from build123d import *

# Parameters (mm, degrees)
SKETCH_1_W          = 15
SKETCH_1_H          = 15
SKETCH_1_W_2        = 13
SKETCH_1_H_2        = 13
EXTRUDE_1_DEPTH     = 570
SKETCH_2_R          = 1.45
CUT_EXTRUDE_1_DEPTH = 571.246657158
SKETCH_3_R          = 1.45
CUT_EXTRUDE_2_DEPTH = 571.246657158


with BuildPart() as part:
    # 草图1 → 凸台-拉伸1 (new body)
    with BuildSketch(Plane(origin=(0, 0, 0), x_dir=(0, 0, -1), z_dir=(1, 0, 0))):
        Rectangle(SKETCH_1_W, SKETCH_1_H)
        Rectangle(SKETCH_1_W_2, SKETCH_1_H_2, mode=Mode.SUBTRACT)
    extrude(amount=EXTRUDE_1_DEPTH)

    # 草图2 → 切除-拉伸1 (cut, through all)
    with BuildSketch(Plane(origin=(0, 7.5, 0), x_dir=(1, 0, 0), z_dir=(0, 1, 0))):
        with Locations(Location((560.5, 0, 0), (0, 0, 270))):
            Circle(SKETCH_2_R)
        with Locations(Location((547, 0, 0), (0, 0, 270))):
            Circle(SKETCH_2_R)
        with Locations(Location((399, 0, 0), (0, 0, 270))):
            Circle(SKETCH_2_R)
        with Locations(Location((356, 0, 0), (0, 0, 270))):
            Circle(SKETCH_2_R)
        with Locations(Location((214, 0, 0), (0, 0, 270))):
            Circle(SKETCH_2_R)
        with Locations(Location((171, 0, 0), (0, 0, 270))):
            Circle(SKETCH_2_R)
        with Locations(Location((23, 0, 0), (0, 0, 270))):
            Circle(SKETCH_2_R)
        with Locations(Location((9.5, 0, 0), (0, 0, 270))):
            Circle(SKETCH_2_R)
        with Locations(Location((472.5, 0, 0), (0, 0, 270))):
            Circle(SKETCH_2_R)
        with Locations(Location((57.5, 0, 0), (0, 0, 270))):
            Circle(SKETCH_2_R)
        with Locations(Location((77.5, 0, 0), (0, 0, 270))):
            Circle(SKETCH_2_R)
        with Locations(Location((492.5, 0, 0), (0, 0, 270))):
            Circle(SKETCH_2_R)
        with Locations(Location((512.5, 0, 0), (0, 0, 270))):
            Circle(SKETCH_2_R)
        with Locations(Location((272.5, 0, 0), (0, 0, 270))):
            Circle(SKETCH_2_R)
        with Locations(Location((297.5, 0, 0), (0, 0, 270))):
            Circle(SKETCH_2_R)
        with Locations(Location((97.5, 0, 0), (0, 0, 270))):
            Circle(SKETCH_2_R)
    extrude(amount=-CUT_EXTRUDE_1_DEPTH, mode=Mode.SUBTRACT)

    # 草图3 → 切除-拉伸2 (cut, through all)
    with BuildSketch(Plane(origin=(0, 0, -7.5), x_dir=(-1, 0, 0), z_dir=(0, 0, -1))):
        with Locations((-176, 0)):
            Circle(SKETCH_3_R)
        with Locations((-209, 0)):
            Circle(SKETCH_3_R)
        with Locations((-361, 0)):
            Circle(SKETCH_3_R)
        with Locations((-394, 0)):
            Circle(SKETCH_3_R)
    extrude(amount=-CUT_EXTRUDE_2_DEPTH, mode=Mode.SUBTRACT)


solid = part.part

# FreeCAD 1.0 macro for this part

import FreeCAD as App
import Part
import Sketcher
Q = App.Units.Quantity


def add_polygon(sketch, points):
    """Adds a closed chain of lines whose ends are joined by coincident constraints."""
    first, n = sketch.GeometryCount, len(points)
    for a, b in zip(points, points[1:] + points[:1]):
        sketch.addGeometry(Part.LineSegment(App.Vector(*a, 0), App.Vector(*b, 0)), False)
    for i in range(n):
        sketch.addConstraint(Sketcher.Constraint("Coincident", first + i, 2, first + (i + 1) % n, 1))

doc = App.newDocument("Part")
params = doc.addObject("Spreadsheet::Sheet", "Params")
for row, (alias, value) in enumerate([
    ("sketch1_width", "15 mm"),
    ("sketch1_width2", "13 mm"),
    ("pad1_length", "570 mm"),
    ("sketch2_diameter", "2.9 mm"),
    ("sketch3_diameter", "2.9 mm"),
], start=1):
    params.set(f"A{row}", alias)
    params.set(f"B{row}", "=" + value)
    params.setAlias(f"B{row}", alias)

body = doc.addObject("PartDesign::Body", "Body")

# Sketch on YZ plane
sketch1 = body.newObject("Sketcher::SketchObject", "Sketch")
sketch1.AttachmentSupport = (doc.getObject("YZ_Plane"), [""])
sketch1.MapMode = "FlatFace"
add_polygon(sketch1, [(8, 8), (-8, 8), (-8, -8), (8, -8)])  # lines 0-3
add_polygon(sketch1, [(-6, -6), (-6, 6), (6, 6), (6, -6)])  # lines 4-7
sketch1.addConstraint(Sketcher.Constraint("Horizontal", 0))
sketch1.addConstraint(Sketcher.Constraint("Vertical", 1))
sketch1.addConstraint(Sketcher.Constraint("Horizontal", 2))
sketch1.addConstraint(Sketcher.Constraint("Vertical", 3))
sketch1.addConstraint(Sketcher.Constraint("Vertical", 4))
sketch1.addConstraint(Sketcher.Constraint("Horizontal", 5))
sketch1.addConstraint(Sketcher.Constraint("Vertical", 6))
sketch1.addConstraint(Sketcher.Constraint("Horizontal", 7))
sketch1.addConstraint(Sketcher.Constraint("Symmetric", 0, 2, 2, 2, -1, 1))
sketch1.addConstraint(Sketcher.Constraint("Symmetric", 4, 2, 6, 2, -1, 1))
sketch1.addConstraint(Sketcher.Constraint("Equal", 2, 1))
sketch1.addConstraint(Sketcher.Constraint("Equal", 7, 4))
sketch1.addConstraint(Sketcher.Constraint("DistanceX", 0, 2, 0, 1, Q("15 mm")))
sketch1.addConstraint(Sketcher.Constraint("DistanceX", 5, 1, 5, 2, Q("13 mm")))
sketch1.setExpression("Constraints[20]", "Params.sketch1_width")
sketch1.setExpression("Constraints[21]", "Params.sketch1_width2")
pad1 = body.newObject("PartDesign::Pad", "Pad")
pad1.Profile = sketch1
pad1.setExpression("Length", "Params.pad1_length")

# Sketch on XZ plane
sketch2 = body.newObject("Sketcher::SketchObject", "Sketch001")
sketch2.AttachmentSupport = (doc.getObject("XZ_Plane"), [""])
sketch2.MapMode = "FlatFace"
sketch2.AttachmentOffset = App.Placement(App.Vector(0, 0, -7.5), App.Rotation())
sketch2.addGeometry(Part.Circle(App.Vector(560.5, 0, 0), App.Vector(0, 0, 1), 1.4), False)
sketch2.addGeometry(Part.Circle(App.Vector(547, 0, 0), App.Vector(0, 0, 1), 1.4), False)
sketch2.addGeometry(Part.Circle(App.Vector(399, 0, 0), App.Vector(0, 0, 1), 1.4), False)
sketch2.addGeometry(Part.Circle(App.Vector(356, 0, 0), App.Vector(0, 0, 1), 1.4), False)
sketch2.addGeometry(Part.Circle(App.Vector(214, 0, 0), App.Vector(0, 0, 1), 1.4), False)
sketch2.addGeometry(Part.Circle(App.Vector(171, 0, 0), App.Vector(0, 0, 1), 1.4), False)
sketch2.addGeometry(Part.Circle(App.Vector(23, 0, 0), App.Vector(0, 0, 1), 1.4), False)
sketch2.addGeometry(Part.Circle(App.Vector(9.5, 0, 0), App.Vector(0, 0, 1), 1.4), False)
sketch2.addGeometry(Part.Circle(App.Vector(472.5, 0, 0), App.Vector(0, 0, 1), 1.4), False)
sketch2.addGeometry(Part.Circle(App.Vector(57.5, 0, 0), App.Vector(0, 0, 1), 1.4), False)
sketch2.addGeometry(Part.Circle(App.Vector(77.5, 0, 0), App.Vector(0, 0, 1), 1.4), False)
sketch2.addGeometry(Part.Circle(App.Vector(492.5, 0, 0), App.Vector(0, 0, 1), 1.4), False)
sketch2.addGeometry(Part.Circle(App.Vector(512.5, 0, 0), App.Vector(0, 0, 1), 1.4), False)
sketch2.addGeometry(Part.Circle(App.Vector(272.5, 0, 0), App.Vector(0, 0, 1), 1.4), False)
sketch2.addGeometry(Part.Circle(App.Vector(297.5, 0, 0), App.Vector(0, 0, 1), 1.4), False)
sketch2.addGeometry(Part.Circle(App.Vector(97.5, 0, 0), App.Vector(0, 0, 1), 1.4), False)
sketch2.addConstraint(Sketcher.Constraint("Equal", 0, 1))
sketch2.addConstraint(Sketcher.Constraint("Equal", 1, 2))
sketch2.addConstraint(Sketcher.Constraint("Equal", 2, 3))
sketch2.addConstraint(Sketcher.Constraint("Equal", 3, 4))
sketch2.addConstraint(Sketcher.Constraint("Equal", 4, 5))
sketch2.addConstraint(Sketcher.Constraint("Equal", 5, 6))
sketch2.addConstraint(Sketcher.Constraint("Equal", 6, 7))
sketch2.addConstraint(Sketcher.Constraint("Equal", 7, 8))
sketch2.addConstraint(Sketcher.Constraint("Equal", 8, 9))
sketch2.addConstraint(Sketcher.Constraint("Equal", 9, 10))
sketch2.addConstraint(Sketcher.Constraint("Equal", 10, 11))
sketch2.addConstraint(Sketcher.Constraint("Equal", 11, 12))
sketch2.addConstraint(Sketcher.Constraint("Equal", 12, 13))
sketch2.addConstraint(Sketcher.Constraint("Equal", 13, 14))
sketch2.addConstraint(Sketcher.Constraint("Equal", 14, 15))
sketch2.addConstraint(Sketcher.Constraint("PointOnObject", 0, 3, -1))
sketch2.addConstraint(Sketcher.Constraint("PointOnObject", 1, 3, -1))
sketch2.addConstraint(Sketcher.Constraint("PointOnObject", 2, 3, -1))
sketch2.addConstraint(Sketcher.Constraint("PointOnObject", 3, 3, -1))
sketch2.addConstraint(Sketcher.Constraint("PointOnObject", 4, 3, -1))
sketch2.addConstraint(Sketcher.Constraint("PointOnObject", 5, 3, -1))
sketch2.addConstraint(Sketcher.Constraint("PointOnObject", 6, 3, -1))
sketch2.addConstraint(Sketcher.Constraint("PointOnObject", 7, 3, -1))
sketch2.addConstraint(Sketcher.Constraint("PointOnObject", 8, 3, -1))
sketch2.addConstraint(Sketcher.Constraint("PointOnObject", 9, 3, -1))
sketch2.addConstraint(Sketcher.Constraint("PointOnObject", 10, 3, -1))
sketch2.addConstraint(Sketcher.Constraint("PointOnObject", 11, 3, -1))
sketch2.addConstraint(Sketcher.Constraint("PointOnObject", 12, 3, -1))
sketch2.addConstraint(Sketcher.Constraint("PointOnObject", 13, 3, -1))
sketch2.addConstraint(Sketcher.Constraint("PointOnObject", 14, 3, -1))
sketch2.addConstraint(Sketcher.Constraint("PointOnObject", 15, 3, -1))
sketch2.addConstraint(Sketcher.Constraint("Diameter", 0, Q("2.9 mm")))
sketch2.addConstraint(Sketcher.Constraint("DistanceX", -1, 1, 1, 3, Q("547 mm")))
sketch2.addConstraint(Sketcher.Constraint("DistanceX", -1, 1, 2, 3, Q("399 mm")))
sketch2.addConstraint(Sketcher.Constraint("DistanceX", -1, 1, 3, 3, Q("356 mm")))
sketch2.addConstraint(Sketcher.Constraint("DistanceX", -1, 1, 4, 3, Q("214 mm")))
sketch2.addConstraint(Sketcher.Constraint("DistanceX", -1, 1, 5, 3, Q("171 mm")))
sketch2.addConstraint(Sketcher.Constraint("DistanceX", -1, 1, 6, 3, Q("23 mm")))
sketch2.addConstraint(Sketcher.Constraint("DistanceX", 8, 3, 0, 3, Q("88 mm")))
sketch2.addConstraint(Sketcher.Constraint("DistanceX", 7, 3, 9, 3, Q("48 mm")))
sketch2.addConstraint(Sketcher.Constraint("DistanceX", 9, 3, 10, 3, Q("20 mm")))
sketch2.addConstraint(Sketcher.Constraint("DistanceX", 8, 3, 11, 3, Q("20 mm")))
sketch2.addConstraint(Sketcher.Constraint("DistanceX", 11, 3, 12, 3, Q("20 mm")))
sketch2.addConstraint(Sketcher.Constraint("DistanceX", 10, 3, 13, 3, Q("195 mm")))
sketch2.addConstraint(Sketcher.Constraint("DistanceX", 13, 3, 14, 3, Q("25 mm")))
sketch2.addConstraint(Sketcher.Constraint("DistanceX", 10, 3, 15, 3, Q("20 mm")))
sketch2.addConstraint(Sketcher.Constraint("DistanceX", -1, 1, 0, 3, Q("560.5 mm")))
sketch2.addConstraint(Sketcher.Constraint("DistanceX", -1, 1, 7, 3, Q("9.5 mm")))
sketch2.setExpression("Constraints[31]", "Params.sketch2_diameter")
pocket1 = body.newObject("PartDesign::Pocket", "Pocket")
pocket1.Profile = sketch2
pocket1.Type = "ThroughAll"
pocket1.Reversed = True

# Sketch on XY plane
sketch3 = body.newObject("Sketcher::SketchObject", "Sketch002")
sketch3.AttachmentSupport = (doc.getObject("XY_Plane"), [""])
sketch3.MapMode = "FlatFace"
sketch3.AttachmentOffset = App.Placement(App.Vector(0, 0, -7.5), App.Rotation())
sketch3.addGeometry(Part.Circle(App.Vector(176, 0, 0), App.Vector(0, 0, 1), 1.4), False)
sketch3.addGeometry(Part.Circle(App.Vector(209, 0, 0), App.Vector(0, 0, 1), 1.4), False)
sketch3.addGeometry(Part.Circle(App.Vector(361, 0, 0), App.Vector(0, 0, 1), 1.4), False)
sketch3.addGeometry(Part.Circle(App.Vector(394, 0, 0), App.Vector(0, 0, 1), 1.4), False)
sketch3.addConstraint(Sketcher.Constraint("Equal", 0, 1))
sketch3.addConstraint(Sketcher.Constraint("Equal", 1, 2))
sketch3.addConstraint(Sketcher.Constraint("Equal", 2, 3))
sketch3.addConstraint(Sketcher.Constraint("PointOnObject", 0, 3, -1))
sketch3.addConstraint(Sketcher.Constraint("PointOnObject", 1, 3, -1))
sketch3.addConstraint(Sketcher.Constraint("PointOnObject", 2, 3, -1))
sketch3.addConstraint(Sketcher.Constraint("PointOnObject", 3, 3, -1))
sketch3.addConstraint(Sketcher.Constraint("Diameter", 0, Q("2.9 mm")))
sketch3.addConstraint(Sketcher.Constraint("DistanceX", -1, 1, 0, 3, Q("176 mm")))
sketch3.addConstraint(Sketcher.Constraint("DistanceX", -1, 1, 1, 3, Q("209 mm")))
sketch3.addConstraint(Sketcher.Constraint("DistanceX", -1, 1, 2, 3, Q("361 mm")))
sketch3.addConstraint(Sketcher.Constraint("DistanceX", -1, 1, 3, 3, Q("394 mm")))
sketch3.setExpression("Constraints[7]", "Params.sketch3_diameter")
pocket2 = body.newObject("PartDesign::Pocket", "Pocket001")
pocket2.Profile = sketch3
pocket2.Type = "ThroughAll"
pocket2.Reversed = True

doc.recompute()
